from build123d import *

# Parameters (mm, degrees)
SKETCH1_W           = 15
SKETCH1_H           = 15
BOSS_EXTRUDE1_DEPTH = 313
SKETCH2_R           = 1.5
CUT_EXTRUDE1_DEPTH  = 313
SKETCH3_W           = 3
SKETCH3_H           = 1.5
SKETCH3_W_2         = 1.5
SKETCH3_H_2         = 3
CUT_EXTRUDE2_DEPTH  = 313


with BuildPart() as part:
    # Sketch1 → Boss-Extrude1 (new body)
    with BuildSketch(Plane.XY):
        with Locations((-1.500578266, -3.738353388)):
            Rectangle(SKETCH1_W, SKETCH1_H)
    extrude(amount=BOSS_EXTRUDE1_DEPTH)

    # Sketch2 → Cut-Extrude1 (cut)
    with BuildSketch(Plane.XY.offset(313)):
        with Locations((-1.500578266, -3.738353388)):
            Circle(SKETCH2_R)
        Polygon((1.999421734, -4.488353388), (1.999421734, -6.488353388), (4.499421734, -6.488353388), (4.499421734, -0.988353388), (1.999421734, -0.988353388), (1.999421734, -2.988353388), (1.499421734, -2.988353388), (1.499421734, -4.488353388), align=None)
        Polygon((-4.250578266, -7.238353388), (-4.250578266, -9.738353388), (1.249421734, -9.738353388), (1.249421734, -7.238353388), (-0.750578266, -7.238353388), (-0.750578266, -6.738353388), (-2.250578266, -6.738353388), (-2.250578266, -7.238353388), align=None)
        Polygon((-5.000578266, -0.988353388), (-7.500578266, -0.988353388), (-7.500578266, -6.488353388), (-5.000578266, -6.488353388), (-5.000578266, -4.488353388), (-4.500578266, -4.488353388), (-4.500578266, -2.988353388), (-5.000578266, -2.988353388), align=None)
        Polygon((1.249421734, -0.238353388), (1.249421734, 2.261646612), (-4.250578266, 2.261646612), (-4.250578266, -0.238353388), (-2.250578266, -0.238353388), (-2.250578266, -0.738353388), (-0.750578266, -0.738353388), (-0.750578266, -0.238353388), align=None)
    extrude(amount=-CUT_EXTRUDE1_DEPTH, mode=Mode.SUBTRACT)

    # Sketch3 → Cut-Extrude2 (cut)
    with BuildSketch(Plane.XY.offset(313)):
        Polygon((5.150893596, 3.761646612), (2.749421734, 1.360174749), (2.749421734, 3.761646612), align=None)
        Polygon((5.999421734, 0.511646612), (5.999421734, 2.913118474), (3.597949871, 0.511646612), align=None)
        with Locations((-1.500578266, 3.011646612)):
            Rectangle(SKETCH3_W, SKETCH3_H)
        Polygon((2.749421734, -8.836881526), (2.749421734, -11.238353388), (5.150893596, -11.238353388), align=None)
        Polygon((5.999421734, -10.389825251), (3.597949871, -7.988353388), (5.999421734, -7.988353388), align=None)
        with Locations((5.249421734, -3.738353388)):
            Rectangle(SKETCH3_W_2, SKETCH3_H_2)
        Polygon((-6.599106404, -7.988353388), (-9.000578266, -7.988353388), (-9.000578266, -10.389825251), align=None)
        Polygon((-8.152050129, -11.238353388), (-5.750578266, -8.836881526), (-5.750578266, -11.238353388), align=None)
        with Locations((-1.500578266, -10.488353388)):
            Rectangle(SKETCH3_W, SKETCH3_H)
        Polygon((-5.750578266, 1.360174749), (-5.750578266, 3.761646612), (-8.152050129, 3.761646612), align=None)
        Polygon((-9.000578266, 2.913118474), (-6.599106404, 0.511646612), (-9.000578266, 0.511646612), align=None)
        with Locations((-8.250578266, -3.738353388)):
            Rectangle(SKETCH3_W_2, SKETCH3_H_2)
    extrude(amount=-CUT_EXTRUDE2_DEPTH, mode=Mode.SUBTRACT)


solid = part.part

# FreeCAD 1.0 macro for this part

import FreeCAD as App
import Part
import Sketcher

doc = App.newDocument("Part")
body = doc.addObject("PartDesign::Body", "Body")

# Sketch on XY plane
sketch1 = body.newObject("Sketcher::SketchObject", "Sketch")
sketch1.AttachmentSupport = (doc.getObject("XY_Plane"), [""])
sketch1.MapMode = "FlatFace"
sketch1.addGeometry(Part.LineSegment(App.Vector(-9, 4, 0), App.Vector(-9, -11, 0)), False)
sketch1.addGeometry(Part.LineSegment(App.Vector(-9, -11, 0), App.Vector(6, -11, 0)), False)
sketch1.addGeometry(Part.LineSegment(App.Vector(6, -11, 0), App.Vector(6, 4, 0)), False)
sketch1.addGeometry(Part.LineSegment(App.Vector(6, 4, 0), App.Vector(-9, 4, 0)), False)
sketch1.addConstraint(Sketcher.Constraint("Coincident", 0, 2, 1, 1))
sketch1.addConstraint(Sketcher.Constraint("Coincident", 1, 2, 2, 1))
sketch1.addConstraint(Sketcher.Constraint("Coincident", 2, 2, 3, 1))
sketch1.addConstraint(Sketcher.Constraint("Coincident", 3, 2, 0, 1))
sketch1.addConstraint(Sketcher.Constraint("Vertical", 0))
sketch1.addConstraint(Sketcher.Constraint("Horizontal", 1))
sketch1.addConstraint(Sketcher.Constraint("Vertical", 2))
sketch1.addConstraint(Sketcher.Constraint("Horizontal", 3))
sketch1.addConstraint(Sketcher.Constraint("Equal", 3, 0))
sketch1.addConstraint(Sketcher.Constraint("DistanceX", 1, 1, 1, 2, 15.0))
sketch1.addConstraint(Sketcher.Constraint("DistanceX", 0, 2, -1, 1, 9.000578))
sketch1.addConstraint(Sketcher.Constraint("DistanceY", 0, 2, -1, 1, 11.238353))
pad1 = body.newObject("PartDesign::Pad", "Pad")
pad1.Profile = sketch1
pad1.Length = 313

# Sketch on XY plane
sketch2 = body.newObject("Sketcher::SketchObject", "Sketch001")
sketch2.AttachmentSupport = (doc.getObject("XY_Plane"), [""])
sketch2.MapMode = "FlatFace"
sketch2.AttachmentOffset = App.Placement(App.Vector(0, 0, 313), App.Rotation())
sketch2.addGeometry(Part.Circle(App.Vector(-1.5, -3.7, 0), App.Vector(0, 0, 1), 1.5), False)
sketch2.addGeometry(Part.LineSegment(App.Vector(2, -4.5, 0), App.Vector(2, -6.5, 0)), False)
sketch2.addGeometry(Part.LineSegment(App.Vector(2, -6.5, 0), App.Vector(4.5, -6.5, 0)), False)
sketch2.addGeometry(Part.LineSegment(App.Vector(4.5, -6.5, 0), App.Vector(4.5, -1, 0)), False)
sketch2.addGeometry(Part.LineSegment(App.Vector(4.5, -1, 0), App.Vector(2, -1, 0)), False)
sketch2.addGeometry(Part.LineSegment(App.Vector(2, -1, 0), App.Vector(2, -3, 0)), False)
sketch2.addGeometry(Part.LineSegment(App.Vector(2, -3, 0), App.Vector(1.5, -3, 0)), False)
sketch2.addGeometry(Part.LineSegment(App.Vector(1.5, -3, 0), App.Vector(1.5, -4.5, 0)), False)
sketch2.addGeometry(Part.LineSegment(App.Vector(1.5, -4.5, 0), App.Vector(2, -4.5, 0)), False)
sketch2.addGeometry(Part.LineSegment(App.Vector(-4.3, -7.2, 0), App.Vector(-4.3, -9.7, 0)), False)
sketch2.addGeometry(Part.LineSegment(App.Vector(-4.3, -9.7, 0), App.Vector(1.2, -9.7, 0)), False)
sketch2.addGeometry(Part.LineSegment(App.Vector(1.2, -9.7, 0), App.Vector(1.2, -7.2, 0)), False)
sketch2.addGeometry(Part.LineSegment(App.Vector(1.2, -7.2, 0), App.Vector(-0.8, -7.2, 0)), False)
sketch2.addGeometry(Part.LineSegment(App.Vector(-0.8, -7.2, 0), App.Vector(-0.8, -6.7, 0)), False)
sketch2.addGeometry(Part.LineSegment(App.Vector(-0.8, -6.7, 0), App.Vector(-2.3, -6.7, 0)), False)
sketch2.addGeometry(Part.LineSegment(App.Vector(-2.3, -6.7, 0), App.Vector(-2.3, -7.2, 0)), False)
sketch2.addGeometry(Part.LineSegment(App.Vector(-2.3, -7.2, 0), App.Vector(-4.3, -7.2, 0)), False)
sketch2.addGeometry(Part.LineSegment(App.Vector(-5, -1, 0), App.Vector(-7.5, -1, 0)), False)
sketch2.addGeometry(Part.LineSegment(App.Vector(-7.5, -1, 0), App.Vector(-7.5, -6.5, 0)), False)
sketch2.addGeometry(Part.LineSegment(App.Vector(-7.5, -6.5, 0), App.Vector(-5, -6.5, 0)), False)
sketch2.addGeometry(Part.LineSegment(App.Vector(-5, -6.5, 0), App.Vector(-5, -4.5, 0)), False)
sketch2.addGeometry(Part.LineSegment(App.Vector(-5, -4.5, 0), App.Vector(-4.5, -4.5, 0)), False)
sketch2.addGeometry(Part.LineSegment(App.Vector(-4.5, -4.5, 0), App.Vector(-4.5, -3, 0)), False)
sketch2.addGeometry(Part.LineSegment(App.Vector(-4.5, -3, 0), App.Vector(-5, -3, 0)), False)
sketch2.addGeometry(Part.LineSegment(App.Vector(-5, -3, 0), App.Vector(-5, -1, 0)), False)
sketch2.addGeometry(Part.LineSegment(App.Vector(1.2, -0.2, 0), App.Vector(1.2, 2.3, 0)), False)
sketch2.addGeometry(Part.LineSegment(App.Vector(1.2, 2.3, 0), App.Vector(-4.3, 2.3, 0)), False)
sketch2.addGeometry(Part.LineSegment(App.Vector(-4.3, 2.3, 0), App.Vector(-4.3, -0.2, 0)), False)
sketch2.addGeometry(Part.LineSegment(App.Vector(-4.3, -0.2, 0), App.Vector(-2.3, -0.2, 0)), False)
sketch2.addGeometry(Part.LineSegment(App.Vector(-2.3, -0.2, 0), App.Vector(-2.3, -0.7, 0)), False)
sketch2.addGeometry(Part.LineSegment(App.Vector(-2.3, -0.7, 0), App.Vector(-0.8, -0.7, 0)), False)
sketch2.addGeometry(Part.LineSegment(App.Vector(-0.8, -0.7, 0), App.Vector(-0.8, -0.2, 0)), False)
sketch2.addGeometry(Part.LineSegment(App.Vector(-0.8, -0.2, 0), App.Vector(1.2, -0.2, 0)), False)
sketch2.addConstraint(Sketcher.Constraint("Coincident", 1, 2, 2, 1))
sketch2.addConstraint(Sketcher.Constraint("Coincident", 2, 2, 3, 1))
sketch2.addConstraint(Sketcher.Constraint("Coincident", 3, 2, 4, 1))
sketch2.addConstraint(Sketcher.Constraint("Coincident", 4, 2, 5, 1))
sketch2.addConstraint(Sketcher.Constraint("Coincident", 5, 2, 6, 1))
sketch2.addConstraint(Sketcher.Constraint("Coincident", 6, 2, 7, 1))
sketch2.addConstraint(Sketcher.Constraint("Coincident", 7, 2, 8, 1))
sketch2.addConstraint(Sketcher.Constraint("Coincident", 8, 2, 1, 1))
sketch2.addConstraint(Sketcher.Constraint("Coincident", 9, 2, 10, 1))
sketch2.addConstraint(Sketcher.Constraint("Coincident", 10, 2, 11, 1))
sketch2.addConstraint(Sketcher.Constraint("Coincident", 11, 2, 12, 1))
sketch2.addConstraint(Sketcher.Constraint("Coincident", 12, 2, 13, 1))
sketch2.addConstraint(Sketcher.Constraint("Coincident", 13, 2, 14, 1))
sketch2.addConstraint(Sketcher.Constraint("Coincident", 14, 2, 15, 1))
sketch2.addConstraint(Sketcher.Constraint("Coincident", 15, 2, 16, 1))
sketch2.addConstraint(Sketcher.Constraint("Coincident", 16, 2, 9, 1))
sketch2.addConstraint(Sketcher.Constraint("Coincident", 17, 2, 18, 1))
sketch2.addConstraint(Sketcher.Constraint("Coincident", 18, 2, 19, 1))
sketch2.addConstraint(Sketcher.Constraint("Coincident", 19, 2, 20, 1))
sketch2.addConstraint(Sketcher.Constraint("Coincident", 20, 2, 21, 1))
sketch2.addConstraint(Sketcher.Constraint("Coincident", 21, 2, 22, 1))
sketch2.addConstraint(Sketcher.Constraint("Coincident", 22, 2, 23, 1))
sketch2.addConstraint(Sketcher.Constraint("Coincident", 23, 2, 24, 1))
sketch2.addConstraint(Sketcher.Constraint("Coincident", 24, 2, 17, 1))
sketch2.addConstraint(Sketcher.Constraint("Coincident", 25, 2, 26, 1))
sketch2.addConstraint(Sketcher.Constraint("Coincident", 26, 2, 27, 1))
sketch2.addConstraint(Sketcher.Constraint("Coincident", 27, 2, 28, 1))
sketch2.addConstraint(Sketcher.Constraint("Coincident", 28, 2, 29, 1))
sketch2.addConstraint(Sketcher.Constraint("Coincident", 29, 2, 30, 1))
sketch2.addConstraint(Sketcher.Constraint("Coincident", 30, 2, 31, 1))
sketch2.addConstraint(Sketcher.Constraint("Coincident", 31, 2, 32, 1))
sketch2.addConstraint(Sketcher.Constraint("Coincident", 32, 2, 25, 1))
sketch2.addConstraint(Sketcher.Constraint("Vertical", 1))
sketch2.addConstraint(Sketcher.Constraint("Horizontal", 2))
sketch2.addConstraint(Sketcher.Constraint("Vertical", 3))
sketch2.addConstraint(Sketcher.Constraint("Horizontal", 4))
sketch2.addConstraint(Sketcher.Constraint("Vertical", 5))
sketch2.addConstraint(Sketcher.Constraint("Horizontal", 6))
sketch2.addConstraint(Sketcher.Constraint("Vertical", 7))
sketch2.addConstraint(Sketcher.Constraint("Horizontal", 8))
sketch2.addConstraint(Sketcher.Constraint("Vertical", 9))
sketch2.addConstraint(Sketcher.Constraint("Horizontal", 10))
sketch2.addConstraint(Sketcher.Constraint("Vertical", 11))
sketch2.addConstraint(Sketcher.Constraint("Horizontal", 12))
sketch2.addConstraint(Sketcher.Constraint("Vertical", 13))
sketch2.addConstraint(Sketcher.Constraint("Horizontal", 14))
sketch2.addConstraint(Sketcher.Constraint("Vertical", 15))
sketch2.addConstraint(Sketcher.Constraint("Horizontal", 16))
sketch2.addConstraint(Sketcher.Constraint("Horizontal", 17))
sketch2.addConstraint(Sketcher.Constraint("Vertical", 18))
sketch2.addConstraint(Sketcher.Constraint("Horizontal", 19))
sketch2.addConstraint(Sketcher.Constraint("Vertical", 20))
sketch2.addConstraint(Sketcher.Constraint("Horizontal", 21))
sketch2.addConstraint(Sketcher.Constraint("Vertical", 22))
sketch2.addConstraint(Sketcher.Constraint("Horizontal", 23))
sketch2.addConstraint(Sketcher.Constraint("Vertical", 24))
sketch2.addConstraint(Sketcher.Constraint("Vertical", 25))
sketch2.addConstraint(Sketcher.Constraint("Horizontal", 26))
sketch2.addConstraint(Sketcher.Constraint("Vertical", 27))
sketch2.addConstraint(Sketcher.Constraint("Horizontal", 28))
sketch2.addConstraint(Sketcher.Constraint("Vertical", 29))
sketch2.addConstraint(Sketcher.Constraint("Horizontal", 30))
sketch2.addConstraint(Sketcher.Constraint("Vertical", 31))
sketch2.addConstraint(Sketcher.Constraint("Horizontal", 32))
sketch2.addConstraint(Sketcher.Constraint("Horizontal", 12, 2, 15, 2))
sketch2.addConstraint(Sketcher.Constraint("Horizontal", 4, 2, 17, 2))
sketch2.addConstraint(Sketcher.Constraint("Horizontal", 2, 2, 18, 2))
sketch2.addConstraint(Sketcher.Constraint("Horizontal", 8, 2, 20, 2))
sketch2.addConstraint(Sketcher.Constraint("Horizontal", 6, 2, 22, 2))
sketch2.addConstraint(Sketcher.Constraint("Horizontal", 28, 2, 31, 2))
sketch2.addConstraint(Sketcher.Constraint("Vertical", 1, 2, 4, 2))
sketch2.addConstraint(Sketcher.Constraint("Vertical", 20, 2, 23, 2))
sketch2.addConstraint(Sketcher.Constraint("Vertical", 11, 2, 25, 2))
sketch2.addConstraint(Sketcher.Constraint("Vertical", 16, 2, 26, 2))
sketch2.addConstraint(Sketcher.Constraint("Vertical", 15, 2, 28, 2))
sketch2.addConstraint(Sketcher.Constraint("Vertical", 13, 2, 30, 2))
sketch2.addConstraint(Sketcher.Constraint("Equal", 12, 16))
sketch2.addConstraint(Sketcher.Constraint("Equal", 4, 17))
sketch2.addConstraint(Sketcher.Constraint("Equal", 8, 21))
sketch2.addConstraint(Sketcher.Constraint("Equal", 32, 1))
sketch2.addConstraint(Sketcher.Constraint("Equal", 26, 3))
sketch2.addConstraint(Sketcher.Constraint("Equal", 1, 5))
sketch2.addConstraint(Sketcher.Constraint("Equal", 19, 9))
sketch2.addConstraint(Sketcher.Constraint("Equal", 23, 13))
sketch2.addConstraint(Sketcher.Constraint("Equal", 11, 25))
sketch2.addConstraint(Sketcher.Constraint("Equal", 15, 29))
sketch2.addConstraint(Sketcher.Constraint("Diameter", 0, 3.0))
sketch2.addConstraint(Sketcher.Constraint("DistanceX", 12, 2, 12, 1, 2.0))
sketch2.addConstraint(Sketcher.Constraint("DistanceX", 2, 1, 2, 2, 2.5))
sketch2.addConstraint(Sketcher.Constraint("DistanceX", 6, 2, 6, 1, 0.5))
sketch2.addConstraint(Sketcher.Constraint("DistanceX", 10, 1, 10, 2, 5.5))
sketch2.addConstraint(Sketcher.Constraint("DistanceX", 0, 3, 2, 2, 6.0))
sketch2.addConstraint(Sketcher.Constraint("DistanceY", 9, 2, 0, 3, 6.0))
sketch2.addConstraint(Sketcher.Constraint("DistanceX", 17, 2, 0, 3, 6.0))
sketch2.addConstraint(Sketcher.Constraint("DistanceY", 0, 3, 25, 2, 6.0))
sketch2.addConstraint(Sketcher.Constraint("DistanceY", 1, 2, 0, 3, 2.75))
sketch2.addConstraint(Sketcher.Constraint("DistanceX", 9, 2, 0, 3, 2.75))
sketch2.addConstraint(Sketcher.Constraint("DistanceX", 0, 3, -1, 1, 1.500578))
sketch2.addConstraint(Sketcher.Constraint("DistanceY", 0, 3, -1, 1, 3.738353))
pocket1 = body.newObject("PartDesign::Pocket", "Pocket")
pocket1.Profile = sketch2
pocket1.Length = 313

# Sketch on XY plane
sketch3 = body.newObject("Sketcher::SketchObject", "Sketch002")
sketch3.AttachmentSupport = (doc.getObject("XY_Plane"), [""])
sketch3.MapMode = "FlatFace"
sketch3.AttachmentOffset = App.Placement(App.Vector(0, 0, 313), App.Rotation())
sketch3.addGeometry(Part.LineSegment(App.Vector(2.7, 1.4, 0), App.Vector(5.2, 3.8, 0)), False)
sketch3.addGeometry(Part.LineSegment(App.Vector(5.2, 3.8, 0), App.Vector(2.7, 3.8, 0)), False)
sketch3.addGeometry(Part.LineSegment(App.Vector(2.7, 3.8, 0), App.Vector(2.7, 1.4, 0)), False)
sketch3.addGeometry(Part.LineSegment(App.Vector(6, 0.5, 0), App.Vector(6, 2.9, 0)), False)
sketch3.addGeometry(Part.LineSegment(App.Vector(6, 2.9, 0), App.Vector(3.6, 0.5, 0)), False)
sketch3.addGeometry(Part.LineSegment(App.Vector(3.6, 0.5, 0), App.Vector(6, 0.5, 0)), False)
sketch3.addGeometry(Part.LineSegment(App.Vector(-3, 3.8, 0), App.Vector(-3, 2.3, 0)), False)
sketch3.addGeometry(Part.LineSegment(App.Vector(-3, 2.3, 0), App.Vector(0, 2.3, 0)), False)
sketch3.addGeometry(Part.LineSegment(App.Vector(0, 2.3, 0), App.Vector(0, 3.8, 0)), False)
sketch3.addGeometry(Part.LineSegment(App.Vector(0, 3.8, 0), App.Vector(-3, 3.8, 0)), False)
sketch3.addGeometry(Part.LineSegment(App.Vector(2.7, -8.8, 0), App.Vector(2.7, -11.2, 0)), False)
sketch3.addGeometry(Part.LineSegment(App.Vector(2.7, -11.2, 0), App.Vector(5.2, -11.2, 0)), False)
sketch3.addGeometry(Part.LineSegment(App.Vector(5.2, -11.2, 0), App.Vector(2.7, -8.8, 0)), False)
sketch3.addGeometry(Part.LineSegment(App.Vector(3.6, -8, 0), App.Vector(6, -10.4, 0)), False)
sketch3.addGeometry(Part.LineSegment(App.Vector(6, -10.4, 0), App.Vector(6, -8, 0)), False)
sketch3.addGeometry(Part.LineSegment(App.Vector(6, -8, 0), App.Vector(3.6, -8, 0)), False)
sketch3.addGeometry(Part.LineSegment(App.Vector(4.5, -2.2, 0), App.Vector(4.5, -5.2, 0)), False)
sketch3.addGeometry(Part.LineSegment(App.Vector(4.5, -5.2, 0), App.Vector(6, -5.2, 0)), False)
sketch3.addGeometry(Part.LineSegment(App.Vector(6, -5.2, 0), App.Vector(6, -2.2, 0)), False)
sketch3.addGeometry(Part.LineSegment(App.Vector(6, -2.2, 0), App.Vector(4.5, -2.2, 0)), False)
sketch3.addGeometry(Part.LineSegment(App.Vector(-6.6, -8, 0), App.Vector(-9, -8, 0)), False)
sketch3.addGeometry(Part.LineSegment(App.Vector(-9, -8, 0), App.Vector(-9, -10.4, 0)), False)
sketch3.addGeometry(Part.LineSegment(App.Vector(-9, -10.4, 0), App.Vector(-6.6, -8, 0)), False)
sketch3.addGeometry(Part.LineSegment(App.Vector(-5.8, -8.8, 0), App.Vector(-8.2, -11.2, 0)), False)
sketch3.addGeometry(Part.LineSegment(App.Vector(-8.2, -11.2, 0), App.Vector(-5.8, -11.2, 0)), False)
sketch3.addGeometry(Part.LineSegment(App.Vector(-5.8, -11.2, 0), App.Vector(-5.8, -8.8, 0)), False)
sketch3.addGeometry(Part.LineSegment(App.Vector(-3, -9.7, 0), App.Vector(-3, -11.2, 0)), False)
sketch3.addGeometry(Part.LineSegment(App.Vector(-3, -11.2, 0), App.Vector(0, -11.2, 0)), False)
sketch3.addGeometry(Part.LineSegment(App.Vector(0, -11.2, 0), App.Vector(0, -9.7, 0)), False)
sketch3.addGeometry(Part.LineSegment(App.Vector(0, -9.7, 0), App.Vector(-3, -9.7, 0)), False)
sketch3.addGeometry(Part.LineSegment(App.Vector(-5.8, 1.4, 0), App.Vector(-5.8, 3.8, 0)), False)
sketch3.addGeometry(Part.LineSegment(App.Vector(-5.8, 3.8, 0), App.Vector(-8.2, 3.8, 0)), False)
sketch3.addGeometry(Part.LineSegment(App.Vector(-8.2, 3.8, 0), App.Vector(-5.8, 1.4, 0)), False)
sketch3.addGeometry(Part.LineSegment(App.Vector(-6.6, 0.5, 0), App.Vector(-9, 2.9, 0)), False)
sketch3.addGeometry(Part.LineSegment(App.Vector(-9, 2.9, 0), App.Vector(-9, 0.5, 0)), False)
sketch3.addGeometry(Part.LineSegment(App.Vector(-9, 0.5, 0), App.Vector(-6.6, 0.5, 0)), False)
sketch3.addGeometry(Part.LineSegment(App.Vector(-9, -2.2, 0), App.Vector(-9, -5.2, 0)), False)
sketch3.addGeometry(Part.LineSegment(App.Vector(-9, -5.2, 0), App.Vector(-7.5, -5.2, 0)), False)
sketch3.addGeometry(Part.LineSegment(App.Vector(-7.5, -5.2, 0), App.Vector(-7.5, -2.2, 0)), False)
sketch3.addGeometry(Part.LineSegment(App.Vector(-7.5, -2.2, 0), App.Vector(-9, -2.2, 0)), False)
sketch3.addConstraint(Sketcher.Constraint("Coincident", 0, 2, 1, 1))
sketch3.addConstraint(Sketcher.Constraint("Coincident", 1, 2, 2, 1))
sketch3.addConstraint(Sketcher.Constraint("Coincident", 2, 2, 0, 1))
sketch3.addConstraint(Sketcher.Constraint("Coincident", 3, 2, 4, 1))
sketch3.addConstraint(Sketcher.Constraint("Coincident", 4, 2, 5, 1))
sketch3.addConstraint(Sketcher.Constraint("Coincident", 5, 2, 3, 1))
sketch3.addConstraint(Sketcher.Constraint("Coincident", 6, 2, 7, 1))
sketch3.addConstraint(Sketcher.Constraint("Coincident", 7, 2, 8, 1))
sketch3.addConstraint(Sketcher.Constraint("Coincident", 8, 2, 9, 1))
sketch3.addConstraint(Sketcher.Constraint("Coincident", 9, 2, 6, 1))
sketch3.addConstraint(Sketcher.Constraint("Coincident", 10, 2, 11, 1))
sketch3.addConstraint(Sketcher.Constraint("Coincident", 11, 2, 12, 1))
sketch3.addConstraint(Sketcher.Constraint("Coincident", 12, 2, 10, 1))
sketch3.addConstraint(Sketcher.Constraint("Coincident", 13, 2, 14, 1))
sketch3.addConstraint(Sketcher.Constraint("Coincident", 14, 2, 15, 1))
sketch3.addConstraint(Sketcher.Constraint("Coincident", 15, 2, 13, 1))
sketch3.addConstraint(Sketcher.Constraint("Coincident", 16, 2, 17, 1))
sketch3.addConstraint(Sketcher.Constraint("Coincident", 17, 2, 18, 1))
sketch3.addConstraint(Sketcher.Constraint("Coincident", 18, 2, 19, 1))
sketch3.addConstraint(Sketcher.Constraint("Coincident", 19, 2, 16, 1))
sketch3.addConstraint(Sketcher.Constraint("Coincident", 20, 2, 21, 1))
sketch3.addConstraint(Sketcher.Constraint("Coincident", 21, 2, 22, 1))
sketch3.addConstraint(Sketcher.Constraint("Coincident", 22, 2, 20, 1))
sketch3.addConstraint(Sketcher.Constraint("Coincident", 23, 2, 24, 1))
sketch3.addConstraint(Sketcher.Constraint("Coincident", 24, 2, 25, 1))
sketch3.addConstraint(Sketcher.Constraint("Coincident", 25, 2, 23, 1))
sketch3.addConstraint(Sketcher.Constraint("Coincident", 26, 2, 27, 1))
sketch3.addConstraint(Sketcher.Constraint("Coincident", 27, 2, 28, 1))
sketch3.addConstraint(Sketcher.Constraint("Coincident", 28, 2, 29, 1))
sketch3.addConstraint(Sketcher.Constraint("Coincident", 29, 2, 26, 1))
sketch3.addConstraint(Sketcher.Constraint("Coincident", 30, 2, 31, 1))
sketch3.addConstraint(Sketcher.Constraint("Coincident", 31, 2, 32, 1))
sketch3.addConstraint(Sketcher.Constraint("Coincident", 32, 2, 30, 1))
sketch3.addConstraint(Sketcher.Constraint("Coincident", 33, 2, 34, 1))
sketch3.addConstraint(Sketcher.Constraint("Coincident", 34, 2, 35, 1))
sketch3.addConstraint(Sketcher.Constraint("Coincident", 35, 2, 33, 1))
sketch3.addConstraint(Sketcher.Constraint("Coincident", 36, 2, 37, 1))
sketch3.addConstraint(Sketcher.Constraint("Coincident", 37, 2, 38, 1))
sketch3.addConstraint(Sketcher.Constraint("Coincident", 38, 2, 39, 1))
sketch3.addConstraint(Sketcher.Constraint("Coincident", 39, 2, 36, 1))
sketch3.addConstraint(Sketcher.Constraint("Horizontal", 1))
sketch3.addConstraint(Sketcher.Constraint("Vertical", 2))
sketch3.addConstraint(Sketcher.Constraint("Vertical", 3))
sketch3.addConstraint(Sketcher.Constraint("Horizontal", 5))
sketch3.addConstraint(Sketcher.Constraint("Vertical", 6))
sketch3.addConstraint(Sketcher.Constraint("Horizontal", 7))
sketch3.addConstraint(Sketcher.Constraint("Vertical", 8))
sketch3.addConstraint(Sketcher.Constraint("Horizontal", 9))
sketch3.addConstraint(Sketcher.Constraint("Vertical", 10))
sketch3.addConstraint(Sketcher.Constraint("Horizontal", 11))
sketch3.addConstraint(Sketcher.Constraint("Vertical", 14))
sketch3.addConstraint(Sketcher.Constraint("Horizontal", 15))
sketch3.addConstraint(Sketcher.Constraint("Vertical", 16))
sketch3.addConstraint(Sketcher.Constraint("Horizontal", 17))
sketch3.addConstraint(Sketcher.Constraint("Vertical", 18))
sketch3.addConstraint(Sketcher.Constraint("Horizontal", 19))
sketch3.addConstraint(Sketcher.Constraint("Horizontal", 20))
sketch3.addConstraint(Sketcher.Constraint("Vertical", 21))
sketch3.addConstraint(Sketcher.Constraint("Horizontal", 24))
sketch3.addConstraint(Sketcher.Constraint("Vertical", 25))
sketch3.addConstraint(Sketcher.Constraint("Vertical", 26))
sketch3.addConstraint(Sketcher.Constraint("Horizontal", 27))
sketch3.addConstraint(Sketcher.Constraint("Vertical", 28))
sketch3.addConstraint(Sketcher.Constraint("Horizontal", 29))
sketch3.addConstraint(Sketcher.Constraint("Vertical", 30))
sketch3.addConstraint(Sketcher.Constraint("Horizontal", 31))
sketch3.addConstraint(Sketcher.Constraint("Vertical", 34))
sketch3.addConstraint(Sketcher.Constraint("Horizontal", 35))
sketch3.addConstraint(Sketcher.Constraint("Vertical", 36))
sketch3.addConstraint(Sketcher.Constraint("Horizontal", 37))
sketch3.addConstraint(Sketcher.Constraint("Vertical", 38))
sketch3.addConstraint(Sketcher.Constraint("Horizontal", 39))
sketch3.addConstraint(Sketcher.Constraint("Parallel", 0, 4))
sketch3.addConstraint(Sketcher.Constraint("Perpendicular", 4, 12))
sketch3.addConstraint(Sketcher.Constraint("Parallel", 12, 13))
sketch3.addConstraint(Sketcher.Constraint("Perpendicular", 13, 22))
sketch3.addConstraint(Sketcher.Constraint("Parallel", 22, 23))
sketch3.addConstraint(Sketcher.Constraint("Perpendicular", 23, 32))
sketch3.addConstraint(Sketcher.Constraint("Parallel", 32, 33))
sketch3.addConstraint(Sketcher.Constraint("Horizontal", 1, 2, 8, 2))
sketch3.addConstraint(Sketcher.Constraint("Horizontal", 15, 2, 20, 2))
sketch3.addConstraint(Sketcher.Constraint("Horizontal", 13, 2, 21, 2))
sketch3.addConstraint(Sketcher.Constraint("Horizontal", 11, 2, 23, 2))
sketch3.addConstraint(Sketcher.Constraint("Horizontal", 12, 2, 25, 2))
sketch3.addConstraint(Sketcher.Constraint("Horizontal", 24, 2, 26, 2))
sketch3.addConstraint(Sketcher.Constraint("Horizontal", 9, 2, 30, 2))
sketch3.addConstraint(Sketcher.Constraint("Horizontal", 2, 2, 32, 2))
sketch3.addConstraint(Sketcher.Constraint("Horizontal", 3, 2, 33, 2))
sketch3.addConstraint(Sketcher.Constraint("Horizontal", 5, 2, 34, 2))
sketch3.addConstraint(Sketcher.Constraint("Horizontal", 17, 2, 36, 2))
sketch3.addConstraint(Sketcher.Constraint("Horizontal", 19, 2, 38, 2))
sketch3.addConstraint(Sketcher.Constraint("Vertical", 2, 2, 10, 2))
sketch3.addConstraint(Sketcher.Constraint("Vertical", 0, 2, 11, 2))
sketch3.addConstraint(Sketcher.Constraint("Vertical", 5, 2, 13, 2))
sketch3.addConstraint(Sketcher.Constraint("Vertical", 4, 2, 15, 2))
sketch3.addConstraint(Sketcher.Constraint("Vertical", 14, 2, 17, 2))
sketch3.addConstraint(Sketcher.Constraint("Vertical", 9, 2, 26, 2))
sketch3.addConstraint(Sketcher.Constraint("Vertical", 8, 2, 27, 2))
sketch3.addConstraint(Sketcher.Constraint("Vertical", 25, 2, 30, 2))
sketch3.addConstraint(Sketcher.Constraint("Vertical", 23, 2, 31, 2))
sketch3.addConstraint(Sketcher.Constraint("Vertical", 21, 2, 33, 2))
sketch3.addConstraint(Sketcher.Constraint("Vertical", 34, 2, 36, 2))
sketch3.addConstraint(Sketcher.Constraint("Equal", 1, 5))
sketch3.addConstraint(Sketcher.Constraint("Equal", 19, 37))
sketch3.addConstraint(Sketcher.Constraint("Equal", 39, 6))
sketch3.addConstraint(Sketcher.Constraint("Equal", 29, 16))
sketch3.addConstraint(Sketcher.Constraint("Equal", 8, 26))
sketch3.addConstraint(Sketcher.Constraint("DistanceX", 7, 1, 7, 2, 3.0))
sketch3.addConstraint(Sketcher.Constraint("DistanceX", 17, 1, 17, 2, 1.5))
sketch3.addConstraint(Sketcher.Constraint("DistanceX", 6, 2, 3, 2, 9.0))
sketch3.addConstraint(Sketcher.Constraint("DistanceX", 20, 2, 6, 2, 6.0))
sketch3.addConstraint(Sketcher.Constraint("DistanceY", 10, 2, 7, 2, 13.5))
sketch3.addConstraint(Sketcher.Constraint("DistanceY", 14, 2, 5, 2, 8.5))
sketch3.addConstraint(Sketcher.Constraint("DistanceX", 24, 2, 10, 2, 8.5))
sketch3.addConstraint(Sketcher.Constraint("DistanceX", 1, 2, 3, 2, 3.25))
sketch3.addConstraint(Sketcher.Constraint("DistanceY", 4, 2, 1, 2, 3.25))
sketch3.addConstraint(Sketcher.Constraint("DistanceY", 15, 2, 16, 2, 2.75))
sketch3.addConstraint(Sketcher.Constraint("DistanceX", 1, 2, 1, 1, 2.401472))
sketch3.addConstraint(Sketcher.Constraint("DistanceX", -1, 1, 1, 2, 2.749422))
sketch3.addConstraint(Sketcher.Constraint("DistanceY", -1, 1, 3, 2, 2.913118))
pocket2 = body.newObject("PartDesign::Pocket", "Pocket001")
pocket2.Profile = sketch3
pocket2.Length = 313

doc.recompute()
